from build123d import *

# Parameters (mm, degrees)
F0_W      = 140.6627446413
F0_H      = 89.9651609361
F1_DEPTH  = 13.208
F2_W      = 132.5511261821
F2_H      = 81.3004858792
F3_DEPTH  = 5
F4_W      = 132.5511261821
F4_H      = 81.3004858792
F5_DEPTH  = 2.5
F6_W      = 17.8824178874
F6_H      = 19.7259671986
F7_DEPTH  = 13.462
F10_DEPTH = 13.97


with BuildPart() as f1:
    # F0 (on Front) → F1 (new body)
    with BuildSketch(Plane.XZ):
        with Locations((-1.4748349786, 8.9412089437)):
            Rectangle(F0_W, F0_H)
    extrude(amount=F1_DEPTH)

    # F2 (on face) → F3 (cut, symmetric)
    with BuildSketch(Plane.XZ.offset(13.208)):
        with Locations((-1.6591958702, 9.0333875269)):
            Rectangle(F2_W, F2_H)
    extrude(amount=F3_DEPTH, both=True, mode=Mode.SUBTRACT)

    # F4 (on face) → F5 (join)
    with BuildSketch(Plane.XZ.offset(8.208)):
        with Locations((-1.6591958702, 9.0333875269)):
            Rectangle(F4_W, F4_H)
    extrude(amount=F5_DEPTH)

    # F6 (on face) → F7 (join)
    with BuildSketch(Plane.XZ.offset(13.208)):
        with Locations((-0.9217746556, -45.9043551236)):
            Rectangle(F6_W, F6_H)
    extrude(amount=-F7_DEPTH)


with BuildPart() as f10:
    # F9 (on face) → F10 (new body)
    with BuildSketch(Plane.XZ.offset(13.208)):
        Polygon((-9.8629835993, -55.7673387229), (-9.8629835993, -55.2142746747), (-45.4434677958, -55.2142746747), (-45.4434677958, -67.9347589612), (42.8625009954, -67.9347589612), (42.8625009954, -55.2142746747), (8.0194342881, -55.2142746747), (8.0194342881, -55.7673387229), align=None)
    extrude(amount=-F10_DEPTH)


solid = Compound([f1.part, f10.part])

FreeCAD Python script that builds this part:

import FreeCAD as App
import Part
import Sketcher
Q = App.Units.Quantity


def add_polygon(sketch, points):
    """Adds a closed chain of lines whose ends are joined by coincident constraints."""
    first, n = sketch.GeometryCount, len(points)
    for a, b in zip(points, points[1:] + points[:1]):
        sketch.addGeometry(Part.LineSegment(App.Vector(*a, 0), App.Vector(*b, 0)), False)
    for i in range(n):
        sketch.addConstraint(Sketcher.Constraint("Coincident", first + i, 2, first + (i + 1) % n, 1))

doc = App.newDocument("Part")
params = doc.addObject("Spreadsheet::Sheet", "Params")
for row, (alias, value) in enumerate([
    ("pad1_length", "0.52 in"),
    ("pocket1_length", "10 mm"),
    ("pad2_length", "2.5 mm"),
    ("pad3_length", "0.53 in"),
    ("pad4_length", "0.55 in"),
], start=1):
    params.set(f"A{row}", alias)
    params.set(f"B{row}", "=" + value)
    params.setAlias(f"B{row}", alias)

body = doc.addObject("PartDesign::Body", "Body")

# Sketch on XZ plane
sketch1 = doc.addObject("Sketcher::SketchObject", "Sketch")
body.addObject(sketch1)
sketch1.AttachmentSupport = (doc.XZ_Plane, [""])
sketch1.MapMode = "FlatFace"
add_polygon(sketch1, [(-71.806207, 53.923789), (-71.806207, -36.041372), (68.856537, -36.041372), (68.856537, 53.923789)])  # lines 0-3
sketch1.addConstraint(Sketcher.Constraint("Vertical", 0))
sketch1.addConstraint(Sketcher.Constraint("Horizontal", 1))
sketch1.addConstraint(Sketcher.Constraint("Vertical", 2))
sketch1.addConstraint(Sketcher.Constraint("Horizontal", 3))
sketch1.addConstraint(Sketcher.Constraint("DistanceY", 0, 2, 0, 1, 89.965161))
sketch1.addConstraint(Sketcher.Constraint("DistanceX", 1, 1, 1, 2, 140.662745))
sketch1.addConstraint(Sketcher.Constraint("DistanceY", 0, 2, -1, 1, 36.041372))
sketch1.addConstraint(Sketcher.Constraint("DistanceX", 0, 2, -1, 1, 71.806207))
pad1 = doc.addObject("PartDesign::Pad", "Pad")
body.addObject(pad1)
pad1.Profile = sketch1
pad1.setExpression("Length", "Params.pad1_length")

# Sketch on XZ plane
sketch2 = doc.addObject("Sketcher::SketchObject", "Sketch001")
body.addObject(sketch2)
sketch2.AttachmentSupport = (doc.XZ_Plane, [""])
sketch2.MapMode = "FlatFace"
sketch2.AttachmentOffset = App.Placement(App.Vector(0, 0, 0.52 * 25.4), App.Rotation())
add_polygon(sketch2, [(-67.934759, 49.68363), (-67.934759, -31.616855), (64.616367, -31.616855), (64.616367, 49.68363)])  # lines 0-3
sketch2.addConstraint(Sketcher.Constraint("Vertical", 0))
sketch2.addConstraint(Sketcher.Constraint("Horizontal", 1))
sketch2.addConstraint(Sketcher.Constraint("Vertical", 2))
sketch2.addConstraint(Sketcher.Constraint("Horizontal", 3))
sketch2.addConstraint(Sketcher.Constraint("DistanceX", 1, 1, 1, 2, 132.551126))
sketch2.addConstraint(Sketcher.Constraint("DistanceY", 0, 2, 0, 1, 81.300486))
sketch2.addConstraint(Sketcher.Constraint("DistanceX", 0, 2, -1, 1, 67.934759))
sketch2.addConstraint(Sketcher.Constraint("DistanceY", -1, 1, 2, 2, 49.68363))
pocket1 = doc.addObject("PartDesign::Pocket", "Pocket")
body.addObject(pocket1)
pocket1.Profile = sketch2
pocket1.setExpression("Length", "Params.pocket1_length")
pocket1.Midplane = True

# Sketch on XZ plane
sketch3 = doc.addObject("Sketcher::SketchObject", "Sketch002")
body.addObject(sketch3)
sketch3.AttachmentSupport = (doc.XZ_Plane, [""])
sketch3.MapMode = "FlatFace"
sketch3.AttachmentOffset = App.Placement(App.Vector(0, 0, 8.208), App.Rotation())
add_polygon(sketch3, [(-67.934759, 49.68363), (-67.934759, -31.616855), (64.616367, -31.616855), (64.616367, 49.68363)])  # lines 0-3
sketch3.addConstraint(Sketcher.Constraint("Vertical", 0))
sketch3.addConstraint(Sketcher.Constraint("Horizontal", 1))
sketch3.addConstraint(Sketcher.Constraint("Vertical", 2))
sketch3.addConstraint(Sketcher.Constraint("Horizontal", 3))
sketch3.addConstraint(Sketcher.Constraint("DistanceX", 1, 1, 1, 2, 132.551126))
sketch3.addConstraint(Sketcher.Constraint("DistanceY", 0, 2, 0, 1, 81.300486))
sketch3.addConstraint(Sketcher.Constraint("DistanceX", 0, 2, -1, 1, 67.934759))
sketch3.addConstraint(Sketcher.Constraint("DistanceY", -1, 1, 2, 2, 49.68363))
pad2 = doc.addObject("PartDesign::Pad", "Pad001")
body.addObject(pad2)
pad2.Profile = sketch3
pad2.setExpression("Length", "Params.pad2_length")

# Sketch on XZ plane
sketch4 = doc.addObject("Sketcher::SketchObject", "Sketch003")
body.addObject(sketch4)
sketch4.AttachmentSupport = (doc.XZ_Plane, [""])
sketch4.MapMode = "FlatFace"
sketch4.AttachmentOffset = App.Placement(App.Vector(0, 0, 0.52 * 25.4), App.Rotation())
add_polygon(sketch4, [(-9.862984, -36.041372), (-9.862984, -55.767339), (8.019434, -55.767339), (8.019434, -36.041372)])  # lines 0-3
sketch4.addConstraint(Sketcher.Constraint("Vertical", 0))
sketch4.addConstraint(Sketcher.Constraint("Horizontal", 1))
sketch4.addConstraint(Sketcher.Constraint("Vertical", 2))
sketch4.addConstraint(Sketcher.Constraint("Horizontal", 3))
sketch4.addConstraint(Sketcher.Constraint("DistanceX", 1, 1, 1, 2, 17.882418))
sketch4.addConstraint(Sketcher.Constraint("DistanceY", 0, 2, 0, 1, 19.725967))
sketch4.addConstraint(Sketcher.Constraint("DistanceY", 0, 2, -1, 1, 55.767339))
sketch4.addConstraint(Sketcher.Constraint("DistanceX", 0, 2, -1, 1, 9.862984))
pad3 = doc.addObject("PartDesign::Pad", "Pad002")
body.addObject(pad3)
pad3.Profile = sketch4
pad3.setExpression("Length", "Params.pad3_length")
pad3.Reversed = True
body2 = doc.addObject("PartDesign::Body", "Body001")

# Sketch on XZ plane
sketch5 = doc.addObject("Sketcher::SketchObject", "Sketch004")
body2.addObject(sketch5)
sketch5.AttachmentSupport = (doc.getObject("XZ_Plane001"), [""])
sketch5.MapMode = "FlatFace"
sketch5.AttachmentOffset = App.Placement(App.Vector(0, 0, 0.52 * 25.4), App.Rotation())
add_polygon(sketch5, [(-9.862984, -55.767339), (-9.862984, -55.214275), (-45.443468, -55.214275), (-45.443468, -67.934759), (42.862501, -67.934759), (42.862501, -55.214275), (8.019434, -55.214275), (8.019434, -55.767339)])  # lines 0-7
sketch5.addConstraint(Sketcher.Constraint("Vertical", 0))
sketch5.addConstraint(Sketcher.Constraint("Horizontal", 1))
sketch5.addConstraint(Sketcher.Constraint("Vertical", 2))
sketch5.addConstraint(Sketcher.Constraint("Horizontal", 3))
sketch5.addConstraint(Sketcher.Constraint("Vertical", 4))
sketch5.addConstraint(Sketcher.Constraint("Horizontal", 5))
sketch5.addConstraint(Sketcher.Constraint("Vertical", 6))
sketch5.addConstraint(Sketcher.Constraint("Horizontal", 7))
sketch5.addConstraint(Sketcher.Constraint("Horizontal", 1, 2, 4, 2))
sketch5.addConstraint(Sketcher.Constraint("DistanceX", -1, 1, 3, 2, Q("1.6875 in")))
sketch5.addConstraint(Sketcher.Constraint("DistanceX", 3, 1, 3, 2, 88.305969))
sketch5.addConstraint(Sketcher.Constraint("DistanceX", 1, 2, 1, 1, 35.580484))
sketch5.addConstraint(Sketcher.Constraint("DistanceX", 5, 2, 5, 1, 34.843067))
sketch5.addConstraint(Sketcher.Constraint("DistanceY", 0, 1, 0, 2, 0.553064))
sketch5.addConstraint(Sketcher.Constraint("DistanceY", 2, 2, 2, 1, 12.720484))
sketch5.addConstraint(Sketcher.Constraint("DistanceY", 2, 2, -1, 1, 67.934759))
pad4 = doc.addObject("PartDesign::Pad", "Pad003")
body2.addObject(pad4)
pad4.Profile = sketch5
pad4.setExpression("Length", "Params.pad4_length")
pad4.Reversed = True

doc.recompute()
